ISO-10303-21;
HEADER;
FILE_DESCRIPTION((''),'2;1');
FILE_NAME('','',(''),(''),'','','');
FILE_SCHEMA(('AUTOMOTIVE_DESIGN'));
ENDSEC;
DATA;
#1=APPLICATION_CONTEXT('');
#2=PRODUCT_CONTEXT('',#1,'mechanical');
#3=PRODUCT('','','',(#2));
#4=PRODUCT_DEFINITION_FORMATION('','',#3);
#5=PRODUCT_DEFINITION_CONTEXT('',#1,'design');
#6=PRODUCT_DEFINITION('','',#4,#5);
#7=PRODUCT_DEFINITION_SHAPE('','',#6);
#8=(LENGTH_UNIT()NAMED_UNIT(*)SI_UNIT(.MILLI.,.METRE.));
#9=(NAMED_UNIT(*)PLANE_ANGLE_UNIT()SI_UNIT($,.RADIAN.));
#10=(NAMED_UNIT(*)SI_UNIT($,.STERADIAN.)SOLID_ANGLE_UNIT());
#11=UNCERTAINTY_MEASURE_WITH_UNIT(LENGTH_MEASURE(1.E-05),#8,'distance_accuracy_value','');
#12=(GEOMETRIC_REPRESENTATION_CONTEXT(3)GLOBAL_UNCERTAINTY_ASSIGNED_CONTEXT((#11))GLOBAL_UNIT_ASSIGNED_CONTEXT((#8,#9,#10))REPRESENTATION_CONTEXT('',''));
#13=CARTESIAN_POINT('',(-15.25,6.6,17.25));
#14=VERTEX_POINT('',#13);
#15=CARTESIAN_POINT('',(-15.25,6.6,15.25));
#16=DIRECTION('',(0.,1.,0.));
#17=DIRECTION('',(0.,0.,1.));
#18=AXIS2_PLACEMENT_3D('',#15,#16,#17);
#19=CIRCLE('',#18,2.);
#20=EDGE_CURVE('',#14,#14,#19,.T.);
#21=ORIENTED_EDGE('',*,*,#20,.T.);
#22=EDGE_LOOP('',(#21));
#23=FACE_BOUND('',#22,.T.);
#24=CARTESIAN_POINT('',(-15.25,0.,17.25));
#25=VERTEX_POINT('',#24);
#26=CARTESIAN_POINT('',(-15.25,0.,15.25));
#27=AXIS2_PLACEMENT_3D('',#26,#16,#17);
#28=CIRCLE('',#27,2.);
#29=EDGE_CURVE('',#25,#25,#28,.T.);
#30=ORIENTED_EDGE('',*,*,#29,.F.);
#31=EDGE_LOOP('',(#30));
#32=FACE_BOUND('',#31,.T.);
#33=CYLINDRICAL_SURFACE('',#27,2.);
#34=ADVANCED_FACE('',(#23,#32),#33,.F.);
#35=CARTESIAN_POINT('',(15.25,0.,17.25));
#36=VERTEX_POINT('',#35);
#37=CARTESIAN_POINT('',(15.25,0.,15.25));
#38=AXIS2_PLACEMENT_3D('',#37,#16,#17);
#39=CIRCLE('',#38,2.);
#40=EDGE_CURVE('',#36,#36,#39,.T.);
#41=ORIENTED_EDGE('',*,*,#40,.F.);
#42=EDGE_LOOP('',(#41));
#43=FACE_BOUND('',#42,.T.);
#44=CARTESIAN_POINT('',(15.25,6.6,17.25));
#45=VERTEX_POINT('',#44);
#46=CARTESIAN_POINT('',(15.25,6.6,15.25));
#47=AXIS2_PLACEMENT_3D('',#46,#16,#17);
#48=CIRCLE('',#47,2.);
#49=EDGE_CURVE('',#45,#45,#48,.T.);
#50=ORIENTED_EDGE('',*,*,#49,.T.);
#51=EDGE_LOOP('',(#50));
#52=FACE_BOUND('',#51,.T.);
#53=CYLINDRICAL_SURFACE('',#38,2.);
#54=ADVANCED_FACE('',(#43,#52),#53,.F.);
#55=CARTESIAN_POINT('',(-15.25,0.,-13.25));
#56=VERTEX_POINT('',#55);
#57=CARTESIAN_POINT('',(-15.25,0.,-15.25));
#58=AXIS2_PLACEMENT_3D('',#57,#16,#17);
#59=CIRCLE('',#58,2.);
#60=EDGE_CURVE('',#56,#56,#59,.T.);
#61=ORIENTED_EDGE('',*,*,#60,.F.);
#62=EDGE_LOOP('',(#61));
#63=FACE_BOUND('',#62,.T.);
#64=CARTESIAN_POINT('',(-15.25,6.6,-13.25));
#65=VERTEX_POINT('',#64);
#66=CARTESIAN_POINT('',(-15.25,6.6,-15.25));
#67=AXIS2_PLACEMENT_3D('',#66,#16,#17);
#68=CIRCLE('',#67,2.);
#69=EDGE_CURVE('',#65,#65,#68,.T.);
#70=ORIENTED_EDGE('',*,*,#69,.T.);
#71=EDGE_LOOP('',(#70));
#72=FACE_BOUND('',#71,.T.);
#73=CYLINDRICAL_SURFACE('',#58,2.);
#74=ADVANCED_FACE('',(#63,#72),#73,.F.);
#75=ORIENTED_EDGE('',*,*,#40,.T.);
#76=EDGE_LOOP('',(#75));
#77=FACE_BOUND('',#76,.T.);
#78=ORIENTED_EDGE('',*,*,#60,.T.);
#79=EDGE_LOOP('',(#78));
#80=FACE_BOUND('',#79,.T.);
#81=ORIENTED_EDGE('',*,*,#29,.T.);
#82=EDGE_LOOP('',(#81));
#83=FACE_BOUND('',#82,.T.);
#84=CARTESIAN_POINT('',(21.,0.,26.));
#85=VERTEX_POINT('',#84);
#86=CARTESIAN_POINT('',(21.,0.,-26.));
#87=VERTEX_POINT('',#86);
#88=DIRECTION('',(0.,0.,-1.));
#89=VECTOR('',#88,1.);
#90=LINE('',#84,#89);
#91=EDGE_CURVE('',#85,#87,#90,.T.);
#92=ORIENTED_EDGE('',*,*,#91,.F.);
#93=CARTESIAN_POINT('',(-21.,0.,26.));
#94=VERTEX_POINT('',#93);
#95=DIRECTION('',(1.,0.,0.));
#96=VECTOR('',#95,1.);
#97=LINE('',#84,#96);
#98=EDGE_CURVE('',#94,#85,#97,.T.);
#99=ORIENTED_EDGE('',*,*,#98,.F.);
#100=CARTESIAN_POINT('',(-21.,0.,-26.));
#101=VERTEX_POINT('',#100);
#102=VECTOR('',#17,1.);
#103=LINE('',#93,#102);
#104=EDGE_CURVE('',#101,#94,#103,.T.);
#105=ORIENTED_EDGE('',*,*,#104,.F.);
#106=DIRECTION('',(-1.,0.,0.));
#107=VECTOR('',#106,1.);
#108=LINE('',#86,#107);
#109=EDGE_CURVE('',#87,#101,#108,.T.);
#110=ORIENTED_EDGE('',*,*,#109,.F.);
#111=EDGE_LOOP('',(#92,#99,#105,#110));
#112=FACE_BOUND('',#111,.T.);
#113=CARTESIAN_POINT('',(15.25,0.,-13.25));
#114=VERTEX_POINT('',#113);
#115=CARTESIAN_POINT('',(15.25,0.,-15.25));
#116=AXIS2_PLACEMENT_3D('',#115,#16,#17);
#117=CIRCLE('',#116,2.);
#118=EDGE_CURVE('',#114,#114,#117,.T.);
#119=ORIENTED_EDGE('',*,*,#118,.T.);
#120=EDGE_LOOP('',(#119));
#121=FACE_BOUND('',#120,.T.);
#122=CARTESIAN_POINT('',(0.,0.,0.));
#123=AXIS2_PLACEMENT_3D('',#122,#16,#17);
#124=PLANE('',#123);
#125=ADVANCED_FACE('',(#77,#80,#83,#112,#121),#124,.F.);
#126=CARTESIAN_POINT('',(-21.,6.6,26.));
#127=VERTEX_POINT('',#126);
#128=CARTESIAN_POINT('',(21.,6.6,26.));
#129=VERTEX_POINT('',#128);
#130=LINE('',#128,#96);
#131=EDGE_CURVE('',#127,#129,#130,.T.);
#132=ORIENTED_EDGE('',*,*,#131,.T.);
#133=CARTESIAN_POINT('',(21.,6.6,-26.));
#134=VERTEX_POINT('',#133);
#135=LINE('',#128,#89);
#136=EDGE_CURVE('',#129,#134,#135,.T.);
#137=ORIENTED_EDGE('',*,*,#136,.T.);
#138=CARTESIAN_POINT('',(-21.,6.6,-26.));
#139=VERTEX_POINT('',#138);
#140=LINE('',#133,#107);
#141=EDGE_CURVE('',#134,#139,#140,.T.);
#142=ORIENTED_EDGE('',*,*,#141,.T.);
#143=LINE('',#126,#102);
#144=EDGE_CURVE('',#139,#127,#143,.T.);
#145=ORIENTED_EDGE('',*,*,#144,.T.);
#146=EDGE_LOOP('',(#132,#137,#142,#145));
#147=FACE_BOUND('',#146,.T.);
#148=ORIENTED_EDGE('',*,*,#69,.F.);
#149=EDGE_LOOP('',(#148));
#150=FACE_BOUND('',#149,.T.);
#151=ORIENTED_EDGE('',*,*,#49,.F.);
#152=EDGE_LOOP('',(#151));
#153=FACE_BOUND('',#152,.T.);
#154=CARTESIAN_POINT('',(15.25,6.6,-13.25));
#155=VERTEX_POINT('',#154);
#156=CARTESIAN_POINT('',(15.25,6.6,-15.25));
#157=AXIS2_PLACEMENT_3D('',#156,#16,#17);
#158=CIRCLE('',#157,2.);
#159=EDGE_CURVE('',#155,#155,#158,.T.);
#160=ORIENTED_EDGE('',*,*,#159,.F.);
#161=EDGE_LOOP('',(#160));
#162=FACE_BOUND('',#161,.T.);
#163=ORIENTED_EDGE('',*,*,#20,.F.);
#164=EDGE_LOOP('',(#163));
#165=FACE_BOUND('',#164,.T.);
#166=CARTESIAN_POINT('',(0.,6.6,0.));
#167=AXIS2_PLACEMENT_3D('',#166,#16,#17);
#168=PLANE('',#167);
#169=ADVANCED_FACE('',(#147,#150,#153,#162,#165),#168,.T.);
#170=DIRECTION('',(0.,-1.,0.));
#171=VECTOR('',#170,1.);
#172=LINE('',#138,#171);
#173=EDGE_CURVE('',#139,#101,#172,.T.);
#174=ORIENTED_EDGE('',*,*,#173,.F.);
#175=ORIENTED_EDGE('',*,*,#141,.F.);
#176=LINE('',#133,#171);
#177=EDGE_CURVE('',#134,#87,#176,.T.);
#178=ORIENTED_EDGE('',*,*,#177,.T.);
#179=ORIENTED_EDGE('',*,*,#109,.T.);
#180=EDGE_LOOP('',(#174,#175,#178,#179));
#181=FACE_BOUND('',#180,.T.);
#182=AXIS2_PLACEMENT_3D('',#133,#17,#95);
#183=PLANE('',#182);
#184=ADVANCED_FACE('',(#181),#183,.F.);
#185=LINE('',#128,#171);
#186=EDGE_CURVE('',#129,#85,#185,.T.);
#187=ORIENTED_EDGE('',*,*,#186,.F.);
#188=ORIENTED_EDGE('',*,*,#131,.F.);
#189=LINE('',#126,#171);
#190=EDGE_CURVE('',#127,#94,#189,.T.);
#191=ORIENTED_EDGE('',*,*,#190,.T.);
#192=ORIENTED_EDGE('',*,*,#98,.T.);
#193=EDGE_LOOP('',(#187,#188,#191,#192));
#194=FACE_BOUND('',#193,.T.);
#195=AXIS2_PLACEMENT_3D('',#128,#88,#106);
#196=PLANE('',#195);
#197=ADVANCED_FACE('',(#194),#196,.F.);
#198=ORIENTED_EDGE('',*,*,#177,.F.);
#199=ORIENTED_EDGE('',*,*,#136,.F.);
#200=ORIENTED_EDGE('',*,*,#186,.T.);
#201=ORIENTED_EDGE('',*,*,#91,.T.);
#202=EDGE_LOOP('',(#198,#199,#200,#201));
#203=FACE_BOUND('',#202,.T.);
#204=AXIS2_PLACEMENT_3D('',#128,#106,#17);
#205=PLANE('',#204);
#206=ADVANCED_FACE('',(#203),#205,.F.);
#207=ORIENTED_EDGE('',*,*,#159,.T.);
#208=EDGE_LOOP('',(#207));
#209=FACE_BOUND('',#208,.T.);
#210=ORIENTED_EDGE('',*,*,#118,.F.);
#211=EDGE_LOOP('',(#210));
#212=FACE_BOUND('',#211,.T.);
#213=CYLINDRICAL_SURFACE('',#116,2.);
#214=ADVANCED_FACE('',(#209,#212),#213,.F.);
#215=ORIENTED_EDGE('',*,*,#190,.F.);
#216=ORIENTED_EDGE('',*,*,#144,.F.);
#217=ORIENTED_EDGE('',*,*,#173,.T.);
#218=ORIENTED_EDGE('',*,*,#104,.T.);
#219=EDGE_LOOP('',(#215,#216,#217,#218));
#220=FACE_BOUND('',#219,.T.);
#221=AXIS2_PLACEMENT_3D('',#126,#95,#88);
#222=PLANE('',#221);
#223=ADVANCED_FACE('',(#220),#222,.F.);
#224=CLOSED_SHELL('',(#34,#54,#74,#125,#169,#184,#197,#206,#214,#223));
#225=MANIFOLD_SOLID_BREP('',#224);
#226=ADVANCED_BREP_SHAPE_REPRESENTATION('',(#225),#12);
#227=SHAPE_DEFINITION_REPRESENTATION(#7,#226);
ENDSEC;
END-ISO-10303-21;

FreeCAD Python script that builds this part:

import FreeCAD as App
import Part
import Sketcher


def add_polygon(sketch, points):
    """Adds a closed chain of lines whose ends are joined by coincident constraints."""
    first, n = sketch.GeometryCount, len(points)
    for a, b in zip(points, points[1:] + points[:1]):
        sketch.addGeometry(Part.LineSegment(App.Vector(*a, 0), App.Vector(*b, 0)), False)
    for i in range(n):
        sketch.addConstraint(Sketcher.Constraint("Coincident", first + i, 2, first + (i + 1) % n, 1))

doc = App.newDocument("Part")
body = doc.addObject("PartDesign::Body", "Body")

sketch1 = body.newObject("Sketcher::SketchObject", "Sketch")
sketch1.AttachmentSupport = (doc.getObject("XZ_Plane"), [""])
sketch1.MapMode = "FlatFace"
add_polygon(sketch1, [(-21, -26), (-21, 26), (21, 26), (21, -26)])
sketch1.addConstraint([
    Sketcher.Constraint("Vertical", 0),
    Sketcher.Constraint("Horizontal", 1),
    Sketcher.Constraint("Vertical", 2),
    Sketcher.Constraint("Horizontal", 3),
    Sketcher.Constraint("Symmetric", 0, 2, 2, 2, -1, 1),
    Sketcher.Constraint("DistanceX", 1, 1, 1, 2, 42.0),
    Sketcher.Constraint("DistanceY", 0, 1, 0, 2, 52.0),
])
pad1 = body.newObject("PartDesign::Pad", "Pad")
pad1.Profile = sketch1
pad1.Length = 6.6
pad1.Reversed = True

sketch2 = body.newObject("Sketcher::SketchObject", "Sketch001")
sketch2.AttachmentSupport = (doc.getObject("XZ_Plane"), [""])
sketch2.MapMode = "FlatFace"
sketch2.AttachmentOffset = App.Placement(App.Vector(0, 0, -6.6), App.Rotation())
sketch2.addGeometry([
    Part.Circle(App.Vector(-15.25, -15.25, 0), App.Vector(0, 0, 1), 2),
    Part.Circle(App.Vector(15.25, -15.25, 0), App.Vector(0, 0, 1), 2),
    Part.Circle(App.Vector(15.25, 15.25, 0), App.Vector(0, 0, 1), 2),
    Part.Circle(App.Vector(-15.25, 15.25, 0), App.Vector(0, 0, 1), 2),
], False)
sketch2.addConstraint([
    Sketcher.Constraint("Equal", 0, 1),
    Sketcher.Constraint("Equal", 1, 2),
    Sketcher.Constraint("Equal", 2, 3),
    Sketcher.Constraint("Symmetric", 0, 3, 2, 3, -1, 1),
    Sketcher.Constraint("Symmetric", 1, 3, 3, 3, -1, 1),
    Sketcher.Constraint("Symmetric", 0, 3, 1, 3, -2),
    Sketcher.Constraint("Diameter", 0, 4.0),
    Sketcher.Constraint("DistanceX", 0, 3, 1, 3, 30.5),
    Sketcher.Constraint("DistanceY", 1, 3, 2, 3, 30.5),
])
pocket1 = body.newObject("PartDesign::Pocket", "Pocket")
pocket1.Profile = sketch2
pocket1.Length = 6.6
pocket1.Reversed = True

doc.recompute()
